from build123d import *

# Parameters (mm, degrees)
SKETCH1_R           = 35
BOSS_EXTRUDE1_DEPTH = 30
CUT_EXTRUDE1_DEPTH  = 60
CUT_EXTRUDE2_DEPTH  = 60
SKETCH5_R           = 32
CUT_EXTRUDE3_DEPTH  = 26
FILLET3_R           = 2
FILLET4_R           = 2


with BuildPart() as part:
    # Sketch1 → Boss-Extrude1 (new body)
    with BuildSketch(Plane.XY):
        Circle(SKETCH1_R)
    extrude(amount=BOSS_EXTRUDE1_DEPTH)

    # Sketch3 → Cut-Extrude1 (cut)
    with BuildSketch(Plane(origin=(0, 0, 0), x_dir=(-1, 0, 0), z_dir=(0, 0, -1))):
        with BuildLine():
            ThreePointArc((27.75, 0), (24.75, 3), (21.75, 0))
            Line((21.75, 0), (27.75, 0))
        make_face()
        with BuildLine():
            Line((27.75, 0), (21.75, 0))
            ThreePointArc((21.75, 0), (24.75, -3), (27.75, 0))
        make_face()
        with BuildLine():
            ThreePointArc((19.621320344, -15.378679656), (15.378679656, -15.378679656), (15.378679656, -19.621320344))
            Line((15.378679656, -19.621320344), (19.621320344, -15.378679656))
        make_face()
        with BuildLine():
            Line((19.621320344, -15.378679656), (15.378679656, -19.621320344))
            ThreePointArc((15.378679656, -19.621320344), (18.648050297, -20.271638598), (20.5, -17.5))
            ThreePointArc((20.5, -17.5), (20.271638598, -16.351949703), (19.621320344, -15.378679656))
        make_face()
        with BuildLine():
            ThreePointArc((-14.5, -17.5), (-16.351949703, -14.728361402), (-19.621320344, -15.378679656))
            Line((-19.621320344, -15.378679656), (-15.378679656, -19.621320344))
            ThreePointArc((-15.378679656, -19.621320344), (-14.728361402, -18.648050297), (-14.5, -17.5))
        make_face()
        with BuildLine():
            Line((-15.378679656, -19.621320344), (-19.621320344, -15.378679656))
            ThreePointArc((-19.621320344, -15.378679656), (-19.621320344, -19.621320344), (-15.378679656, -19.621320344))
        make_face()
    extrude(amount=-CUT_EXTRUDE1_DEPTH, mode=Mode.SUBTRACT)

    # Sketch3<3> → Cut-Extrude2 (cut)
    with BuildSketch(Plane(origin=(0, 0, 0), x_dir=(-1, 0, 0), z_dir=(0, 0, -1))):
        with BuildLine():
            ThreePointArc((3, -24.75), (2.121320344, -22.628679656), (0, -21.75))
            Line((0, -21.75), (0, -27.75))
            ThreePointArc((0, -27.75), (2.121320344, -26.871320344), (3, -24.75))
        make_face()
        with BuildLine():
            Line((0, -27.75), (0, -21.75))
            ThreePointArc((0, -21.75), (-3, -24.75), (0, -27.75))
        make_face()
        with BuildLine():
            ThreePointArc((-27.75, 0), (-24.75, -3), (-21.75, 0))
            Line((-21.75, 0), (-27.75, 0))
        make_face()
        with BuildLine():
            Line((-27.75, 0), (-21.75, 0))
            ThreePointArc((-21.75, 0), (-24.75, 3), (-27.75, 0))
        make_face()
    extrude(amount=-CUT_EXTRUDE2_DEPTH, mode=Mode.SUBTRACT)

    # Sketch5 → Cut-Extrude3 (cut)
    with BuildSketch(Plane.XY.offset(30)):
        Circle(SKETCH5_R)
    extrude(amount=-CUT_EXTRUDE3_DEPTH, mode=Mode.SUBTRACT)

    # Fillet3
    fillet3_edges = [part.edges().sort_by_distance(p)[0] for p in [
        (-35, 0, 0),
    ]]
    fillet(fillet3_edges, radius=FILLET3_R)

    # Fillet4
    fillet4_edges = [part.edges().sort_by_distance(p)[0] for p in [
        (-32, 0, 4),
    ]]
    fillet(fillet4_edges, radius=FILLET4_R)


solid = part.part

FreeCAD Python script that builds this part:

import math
import FreeCAD as App
import Part
import Sketcher
Q = App.Units.Quantity


def edges_at(feature, points):
    """Names of the edges that pass closest to the given points."""
    edges = feature.Shape.Edges
    near = lambda p: min(range(len(edges)), key=lambda i: edges[i].distToShape(Part.Vertex(*p))[0])
    return sorted({f"Edge{near(p) + 1}" for p in points})

doc = App.newDocument("Part")
body = doc.addObject("PartDesign::Body", "Body")

# Sketch on XY plane
sketch1 = body.newObject("Sketcher::SketchObject", "Sketch")
sketch1.AttachmentSupport = (doc.getObject("XY_Plane"), [""])
sketch1.MapMode = "FlatFace"
sketch1.addGeometry(Part.Circle(App.Vector(0, 0, 0), App.Vector(0, 0, 1), 35), False)
sketch1.addConstraint(Sketcher.Constraint("Coincident", 0, 3, -1, 1))
sketch1.addConstraint(Sketcher.Constraint("Diameter", 0, Q("70 mm")))
pad1 = body.newObject("PartDesign::Pad", "Pad")
pad1.Profile = sketch1
pad1.Length = 30

# Sketch on XY plane
sketch2 = body.newObject("Sketcher::SketchObject", "Sketch001")
sketch2.AttachmentSupport = (doc.getObject("XY_Plane"), [""])
sketch2.MapMode = "FlatFace"
sketch2.addGeometry(Part.Circle(App.Vector(-24.8, 0, 0), App.Vector(0, 0, 1), 3), False)
sketch2.addGeometry(Part.ArcOfCircle(Part.Circle(App.Vector(-17.5, -17.5, 0), App.Vector(0, 0, 1), 3), math.radians(-45), math.radians(135)), False)
sketch2.addGeometry(Part.ArcOfCircle(Part.Circle(App.Vector(-17.5, -17.5, 0), App.Vector(0, 0, 1), 3), math.radians(180), math.radians(315)), False)
sketch2.addGeometry(Part.ArcOfCircle(Part.Circle(App.Vector(-17.5, -17.5, 0), App.Vector(0, 0, 1), 3), math.radians(135), math.radians(180)), False)
sketch2.addGeometry(Part.ArcOfCircle(Part.Circle(App.Vector(17.5, -17.5, 0), App.Vector(0, 0, 1), 3), math.radians(45), math.radians(180)), False)
sketch2.addGeometry(Part.ArcOfCircle(Part.Circle(App.Vector(17.5, -17.5, 0), App.Vector(0, 0, 1), 3), math.radians(-135), math.radians(45)), False)
sketch2.addGeometry(Part.ArcOfCircle(Part.Circle(App.Vector(17.5, -17.5, 0), App.Vector(0, 0, 1), 3), math.radians(180), math.radians(225)), False)
sketch2.addConstraint(Sketcher.Constraint("Tangent", 1, 1, 2, 2))
sketch2.addConstraint(Sketcher.Constraint("Tangent", 2, 1, 3, 2))
sketch2.addConstraint(Sketcher.Constraint("Tangent", 3, 1, 1, 2))
sketch2.addConstraint(Sketcher.Constraint("Tangent", 4, 1, 5, 2))
sketch2.addConstraint(Sketcher.Constraint("Tangent", 5, 1, 6, 2))
sketch2.addConstraint(Sketcher.Constraint("Tangent", 6, 1, 4, 2))
sketch2.addConstraint(Sketcher.Constraint("Equal", 0, 1))
sketch2.addConstraint(Sketcher.Constraint("Equal", 3, 4))
sketch2.addConstraint(Sketcher.Constraint("Symmetric", 1, 3, 4, 3, -2))
sketch2.addConstraint(Sketcher.Constraint("PointOnObject", 0, 3, -1))
sketch2.addConstraint(Sketcher.Constraint("Horizontal", 6, 3, 2, 1))
sketch2.addConstraint(Sketcher.Constraint("Horizontal", 3, 1, 4, 1))
sketch2.addConstraint(Sketcher.Constraint("Horizontal", 1, 1, 5, 1))
sketch2.addConstraint(Sketcher.Constraint("Horizontal", 2, 1, 6, 1))
sketch2.addConstraint(Sketcher.Constraint("Diameter", 0, Q("6 mm")))
sketch2.addConstraint(Sketcher.Constraint("DistanceX", 1, 3, 4, 3, Q("35 mm")))
sketch2.addConstraint(Sketcher.Constraint("DistanceX", 1, 1, 4, 1, Q("35 mm")))
sketch2.addConstraint(Sketcher.Constraint("DistanceY", 1, 3, -1, 1, Q("17.5 mm")))
sketch2.addConstraint(Sketcher.Constraint("DistanceX", 0, 3, -1, 1, Q("24.75 mm")))
sketch2.addConstraint(Sketcher.Constraint("DistanceX", 1, 1, -1, 1, Q("15.37868 mm")))
pocket1 = body.newObject("PartDesign::Pocket", "Pocket")
pocket1.Profile = sketch2
pocket1.Length = 60
pocket1.Reversed = True

# Sketch on XY plane
sketch3 = body.newObject("Sketcher::SketchObject", "Sketch002")
sketch3.AttachmentSupport = (doc.getObject("XY_Plane"), [""])
sketch3.MapMode = "FlatFace"
sketch3.addGeometry(Part.ArcOfCircle(Part.Circle(App.Vector(0, -24.7, 0), App.Vector(0, 0, 1), 3), math.radians(90), math.radians(180)), False)
sketch3.addGeometry(Part.ArcOfCircle(Part.Circle(App.Vector(0, -24.8, 0), App.Vector(0, 0, 1), 3), math.radians(-90), math.radians(90)), False)
sketch3.addGeometry(Part.ArcOfCircle(Part.Circle(App.Vector(0, -24.8, 0), App.Vector(0, 0, 1), 3), math.radians(180), math.radians(270)), False)
sketch3.addGeometry(Part.Circle(App.Vector(24.8, 0, 0), App.Vector(0, 0, 1), 3), False)
sketch3.addConstraint(Sketcher.Constraint("Tangent", 0, 1, 1, 2))
sketch3.addConstraint(Sketcher.Constraint("Tangent", 1, 1, 2, 2))
sketch3.addConstraint(Sketcher.Constraint("Tangent", 2, 1, 0, 2))
sketch3.addConstraint(Sketcher.Constraint("Equal", 2, 3))
sketch3.addConstraint(Sketcher.Constraint("PointOnObject", 0, 3, -2))
sketch3.addConstraint(Sketcher.Constraint("PointOnObject", 3, 3, -1))
sketch3.addConstraint(Sketcher.Constraint("PointOnObject", 0, 1, -2))
sketch3.addConstraint(Sketcher.Constraint("PointOnObject", 1, 1, -2))
sketch3.addConstraint(Sketcher.Constraint("Horizontal", 1, 3, 2, 1))
sketch3.addConstraint(Sketcher.Constraint("Diameter", 3, Q("6 mm")))
sketch3.addConstraint(Sketcher.Constraint("DistanceY", 0, 3, -1, 1, Q("24.75 mm")))
sketch3.addConstraint(Sketcher.Constraint("DistanceX", -1, 1, 3, 3, Q("24.75 mm")))
pocket2 = body.newObject("PartDesign::Pocket", "Pocket001")
pocket2.Profile = sketch3
pocket2.Length = 60
pocket2.Reversed = True

# Sketch on XY plane
sketch4 = body.newObject("Sketcher::SketchObject", "Sketch003")
sketch4.AttachmentSupport = (doc.getObject("XY_Plane"), [""])
sketch4.MapMode = "FlatFace"
sketch4.AttachmentOffset = App.Placement(App.Vector(0, 0, 30), App.Rotation())
sketch4.addGeometry(Part.Circle(App.Vector(0, 0, 0), App.Vector(0, 0, 1), 32), False)
sketch4.addConstraint(Sketcher.Constraint("Coincident", 0, 3, -1, 1))
sketch4.addConstraint(Sketcher.Constraint("Diameter", 0, Q("64 mm")))
pocket3 = body.newObject("PartDesign::Pocket", "Pocket002")
pocket3.Profile = sketch4
pocket3.Length = 26
doc.recompute()

fillet = body.newObject("PartDesign::Fillet", "Fillet")
fillet.Base = (pocket3, edges_at(pocket3, [(-35, 0, 0)]))
fillet.Radius = 2
doc.recompute()

fillet2 = body.newObject("PartDesign::Fillet", "Fillet001")
fillet2.Base = (fillet, edges_at(fillet, [(-32, 0, 4)]))
fillet2.Radius = 2

doc.recompute()
